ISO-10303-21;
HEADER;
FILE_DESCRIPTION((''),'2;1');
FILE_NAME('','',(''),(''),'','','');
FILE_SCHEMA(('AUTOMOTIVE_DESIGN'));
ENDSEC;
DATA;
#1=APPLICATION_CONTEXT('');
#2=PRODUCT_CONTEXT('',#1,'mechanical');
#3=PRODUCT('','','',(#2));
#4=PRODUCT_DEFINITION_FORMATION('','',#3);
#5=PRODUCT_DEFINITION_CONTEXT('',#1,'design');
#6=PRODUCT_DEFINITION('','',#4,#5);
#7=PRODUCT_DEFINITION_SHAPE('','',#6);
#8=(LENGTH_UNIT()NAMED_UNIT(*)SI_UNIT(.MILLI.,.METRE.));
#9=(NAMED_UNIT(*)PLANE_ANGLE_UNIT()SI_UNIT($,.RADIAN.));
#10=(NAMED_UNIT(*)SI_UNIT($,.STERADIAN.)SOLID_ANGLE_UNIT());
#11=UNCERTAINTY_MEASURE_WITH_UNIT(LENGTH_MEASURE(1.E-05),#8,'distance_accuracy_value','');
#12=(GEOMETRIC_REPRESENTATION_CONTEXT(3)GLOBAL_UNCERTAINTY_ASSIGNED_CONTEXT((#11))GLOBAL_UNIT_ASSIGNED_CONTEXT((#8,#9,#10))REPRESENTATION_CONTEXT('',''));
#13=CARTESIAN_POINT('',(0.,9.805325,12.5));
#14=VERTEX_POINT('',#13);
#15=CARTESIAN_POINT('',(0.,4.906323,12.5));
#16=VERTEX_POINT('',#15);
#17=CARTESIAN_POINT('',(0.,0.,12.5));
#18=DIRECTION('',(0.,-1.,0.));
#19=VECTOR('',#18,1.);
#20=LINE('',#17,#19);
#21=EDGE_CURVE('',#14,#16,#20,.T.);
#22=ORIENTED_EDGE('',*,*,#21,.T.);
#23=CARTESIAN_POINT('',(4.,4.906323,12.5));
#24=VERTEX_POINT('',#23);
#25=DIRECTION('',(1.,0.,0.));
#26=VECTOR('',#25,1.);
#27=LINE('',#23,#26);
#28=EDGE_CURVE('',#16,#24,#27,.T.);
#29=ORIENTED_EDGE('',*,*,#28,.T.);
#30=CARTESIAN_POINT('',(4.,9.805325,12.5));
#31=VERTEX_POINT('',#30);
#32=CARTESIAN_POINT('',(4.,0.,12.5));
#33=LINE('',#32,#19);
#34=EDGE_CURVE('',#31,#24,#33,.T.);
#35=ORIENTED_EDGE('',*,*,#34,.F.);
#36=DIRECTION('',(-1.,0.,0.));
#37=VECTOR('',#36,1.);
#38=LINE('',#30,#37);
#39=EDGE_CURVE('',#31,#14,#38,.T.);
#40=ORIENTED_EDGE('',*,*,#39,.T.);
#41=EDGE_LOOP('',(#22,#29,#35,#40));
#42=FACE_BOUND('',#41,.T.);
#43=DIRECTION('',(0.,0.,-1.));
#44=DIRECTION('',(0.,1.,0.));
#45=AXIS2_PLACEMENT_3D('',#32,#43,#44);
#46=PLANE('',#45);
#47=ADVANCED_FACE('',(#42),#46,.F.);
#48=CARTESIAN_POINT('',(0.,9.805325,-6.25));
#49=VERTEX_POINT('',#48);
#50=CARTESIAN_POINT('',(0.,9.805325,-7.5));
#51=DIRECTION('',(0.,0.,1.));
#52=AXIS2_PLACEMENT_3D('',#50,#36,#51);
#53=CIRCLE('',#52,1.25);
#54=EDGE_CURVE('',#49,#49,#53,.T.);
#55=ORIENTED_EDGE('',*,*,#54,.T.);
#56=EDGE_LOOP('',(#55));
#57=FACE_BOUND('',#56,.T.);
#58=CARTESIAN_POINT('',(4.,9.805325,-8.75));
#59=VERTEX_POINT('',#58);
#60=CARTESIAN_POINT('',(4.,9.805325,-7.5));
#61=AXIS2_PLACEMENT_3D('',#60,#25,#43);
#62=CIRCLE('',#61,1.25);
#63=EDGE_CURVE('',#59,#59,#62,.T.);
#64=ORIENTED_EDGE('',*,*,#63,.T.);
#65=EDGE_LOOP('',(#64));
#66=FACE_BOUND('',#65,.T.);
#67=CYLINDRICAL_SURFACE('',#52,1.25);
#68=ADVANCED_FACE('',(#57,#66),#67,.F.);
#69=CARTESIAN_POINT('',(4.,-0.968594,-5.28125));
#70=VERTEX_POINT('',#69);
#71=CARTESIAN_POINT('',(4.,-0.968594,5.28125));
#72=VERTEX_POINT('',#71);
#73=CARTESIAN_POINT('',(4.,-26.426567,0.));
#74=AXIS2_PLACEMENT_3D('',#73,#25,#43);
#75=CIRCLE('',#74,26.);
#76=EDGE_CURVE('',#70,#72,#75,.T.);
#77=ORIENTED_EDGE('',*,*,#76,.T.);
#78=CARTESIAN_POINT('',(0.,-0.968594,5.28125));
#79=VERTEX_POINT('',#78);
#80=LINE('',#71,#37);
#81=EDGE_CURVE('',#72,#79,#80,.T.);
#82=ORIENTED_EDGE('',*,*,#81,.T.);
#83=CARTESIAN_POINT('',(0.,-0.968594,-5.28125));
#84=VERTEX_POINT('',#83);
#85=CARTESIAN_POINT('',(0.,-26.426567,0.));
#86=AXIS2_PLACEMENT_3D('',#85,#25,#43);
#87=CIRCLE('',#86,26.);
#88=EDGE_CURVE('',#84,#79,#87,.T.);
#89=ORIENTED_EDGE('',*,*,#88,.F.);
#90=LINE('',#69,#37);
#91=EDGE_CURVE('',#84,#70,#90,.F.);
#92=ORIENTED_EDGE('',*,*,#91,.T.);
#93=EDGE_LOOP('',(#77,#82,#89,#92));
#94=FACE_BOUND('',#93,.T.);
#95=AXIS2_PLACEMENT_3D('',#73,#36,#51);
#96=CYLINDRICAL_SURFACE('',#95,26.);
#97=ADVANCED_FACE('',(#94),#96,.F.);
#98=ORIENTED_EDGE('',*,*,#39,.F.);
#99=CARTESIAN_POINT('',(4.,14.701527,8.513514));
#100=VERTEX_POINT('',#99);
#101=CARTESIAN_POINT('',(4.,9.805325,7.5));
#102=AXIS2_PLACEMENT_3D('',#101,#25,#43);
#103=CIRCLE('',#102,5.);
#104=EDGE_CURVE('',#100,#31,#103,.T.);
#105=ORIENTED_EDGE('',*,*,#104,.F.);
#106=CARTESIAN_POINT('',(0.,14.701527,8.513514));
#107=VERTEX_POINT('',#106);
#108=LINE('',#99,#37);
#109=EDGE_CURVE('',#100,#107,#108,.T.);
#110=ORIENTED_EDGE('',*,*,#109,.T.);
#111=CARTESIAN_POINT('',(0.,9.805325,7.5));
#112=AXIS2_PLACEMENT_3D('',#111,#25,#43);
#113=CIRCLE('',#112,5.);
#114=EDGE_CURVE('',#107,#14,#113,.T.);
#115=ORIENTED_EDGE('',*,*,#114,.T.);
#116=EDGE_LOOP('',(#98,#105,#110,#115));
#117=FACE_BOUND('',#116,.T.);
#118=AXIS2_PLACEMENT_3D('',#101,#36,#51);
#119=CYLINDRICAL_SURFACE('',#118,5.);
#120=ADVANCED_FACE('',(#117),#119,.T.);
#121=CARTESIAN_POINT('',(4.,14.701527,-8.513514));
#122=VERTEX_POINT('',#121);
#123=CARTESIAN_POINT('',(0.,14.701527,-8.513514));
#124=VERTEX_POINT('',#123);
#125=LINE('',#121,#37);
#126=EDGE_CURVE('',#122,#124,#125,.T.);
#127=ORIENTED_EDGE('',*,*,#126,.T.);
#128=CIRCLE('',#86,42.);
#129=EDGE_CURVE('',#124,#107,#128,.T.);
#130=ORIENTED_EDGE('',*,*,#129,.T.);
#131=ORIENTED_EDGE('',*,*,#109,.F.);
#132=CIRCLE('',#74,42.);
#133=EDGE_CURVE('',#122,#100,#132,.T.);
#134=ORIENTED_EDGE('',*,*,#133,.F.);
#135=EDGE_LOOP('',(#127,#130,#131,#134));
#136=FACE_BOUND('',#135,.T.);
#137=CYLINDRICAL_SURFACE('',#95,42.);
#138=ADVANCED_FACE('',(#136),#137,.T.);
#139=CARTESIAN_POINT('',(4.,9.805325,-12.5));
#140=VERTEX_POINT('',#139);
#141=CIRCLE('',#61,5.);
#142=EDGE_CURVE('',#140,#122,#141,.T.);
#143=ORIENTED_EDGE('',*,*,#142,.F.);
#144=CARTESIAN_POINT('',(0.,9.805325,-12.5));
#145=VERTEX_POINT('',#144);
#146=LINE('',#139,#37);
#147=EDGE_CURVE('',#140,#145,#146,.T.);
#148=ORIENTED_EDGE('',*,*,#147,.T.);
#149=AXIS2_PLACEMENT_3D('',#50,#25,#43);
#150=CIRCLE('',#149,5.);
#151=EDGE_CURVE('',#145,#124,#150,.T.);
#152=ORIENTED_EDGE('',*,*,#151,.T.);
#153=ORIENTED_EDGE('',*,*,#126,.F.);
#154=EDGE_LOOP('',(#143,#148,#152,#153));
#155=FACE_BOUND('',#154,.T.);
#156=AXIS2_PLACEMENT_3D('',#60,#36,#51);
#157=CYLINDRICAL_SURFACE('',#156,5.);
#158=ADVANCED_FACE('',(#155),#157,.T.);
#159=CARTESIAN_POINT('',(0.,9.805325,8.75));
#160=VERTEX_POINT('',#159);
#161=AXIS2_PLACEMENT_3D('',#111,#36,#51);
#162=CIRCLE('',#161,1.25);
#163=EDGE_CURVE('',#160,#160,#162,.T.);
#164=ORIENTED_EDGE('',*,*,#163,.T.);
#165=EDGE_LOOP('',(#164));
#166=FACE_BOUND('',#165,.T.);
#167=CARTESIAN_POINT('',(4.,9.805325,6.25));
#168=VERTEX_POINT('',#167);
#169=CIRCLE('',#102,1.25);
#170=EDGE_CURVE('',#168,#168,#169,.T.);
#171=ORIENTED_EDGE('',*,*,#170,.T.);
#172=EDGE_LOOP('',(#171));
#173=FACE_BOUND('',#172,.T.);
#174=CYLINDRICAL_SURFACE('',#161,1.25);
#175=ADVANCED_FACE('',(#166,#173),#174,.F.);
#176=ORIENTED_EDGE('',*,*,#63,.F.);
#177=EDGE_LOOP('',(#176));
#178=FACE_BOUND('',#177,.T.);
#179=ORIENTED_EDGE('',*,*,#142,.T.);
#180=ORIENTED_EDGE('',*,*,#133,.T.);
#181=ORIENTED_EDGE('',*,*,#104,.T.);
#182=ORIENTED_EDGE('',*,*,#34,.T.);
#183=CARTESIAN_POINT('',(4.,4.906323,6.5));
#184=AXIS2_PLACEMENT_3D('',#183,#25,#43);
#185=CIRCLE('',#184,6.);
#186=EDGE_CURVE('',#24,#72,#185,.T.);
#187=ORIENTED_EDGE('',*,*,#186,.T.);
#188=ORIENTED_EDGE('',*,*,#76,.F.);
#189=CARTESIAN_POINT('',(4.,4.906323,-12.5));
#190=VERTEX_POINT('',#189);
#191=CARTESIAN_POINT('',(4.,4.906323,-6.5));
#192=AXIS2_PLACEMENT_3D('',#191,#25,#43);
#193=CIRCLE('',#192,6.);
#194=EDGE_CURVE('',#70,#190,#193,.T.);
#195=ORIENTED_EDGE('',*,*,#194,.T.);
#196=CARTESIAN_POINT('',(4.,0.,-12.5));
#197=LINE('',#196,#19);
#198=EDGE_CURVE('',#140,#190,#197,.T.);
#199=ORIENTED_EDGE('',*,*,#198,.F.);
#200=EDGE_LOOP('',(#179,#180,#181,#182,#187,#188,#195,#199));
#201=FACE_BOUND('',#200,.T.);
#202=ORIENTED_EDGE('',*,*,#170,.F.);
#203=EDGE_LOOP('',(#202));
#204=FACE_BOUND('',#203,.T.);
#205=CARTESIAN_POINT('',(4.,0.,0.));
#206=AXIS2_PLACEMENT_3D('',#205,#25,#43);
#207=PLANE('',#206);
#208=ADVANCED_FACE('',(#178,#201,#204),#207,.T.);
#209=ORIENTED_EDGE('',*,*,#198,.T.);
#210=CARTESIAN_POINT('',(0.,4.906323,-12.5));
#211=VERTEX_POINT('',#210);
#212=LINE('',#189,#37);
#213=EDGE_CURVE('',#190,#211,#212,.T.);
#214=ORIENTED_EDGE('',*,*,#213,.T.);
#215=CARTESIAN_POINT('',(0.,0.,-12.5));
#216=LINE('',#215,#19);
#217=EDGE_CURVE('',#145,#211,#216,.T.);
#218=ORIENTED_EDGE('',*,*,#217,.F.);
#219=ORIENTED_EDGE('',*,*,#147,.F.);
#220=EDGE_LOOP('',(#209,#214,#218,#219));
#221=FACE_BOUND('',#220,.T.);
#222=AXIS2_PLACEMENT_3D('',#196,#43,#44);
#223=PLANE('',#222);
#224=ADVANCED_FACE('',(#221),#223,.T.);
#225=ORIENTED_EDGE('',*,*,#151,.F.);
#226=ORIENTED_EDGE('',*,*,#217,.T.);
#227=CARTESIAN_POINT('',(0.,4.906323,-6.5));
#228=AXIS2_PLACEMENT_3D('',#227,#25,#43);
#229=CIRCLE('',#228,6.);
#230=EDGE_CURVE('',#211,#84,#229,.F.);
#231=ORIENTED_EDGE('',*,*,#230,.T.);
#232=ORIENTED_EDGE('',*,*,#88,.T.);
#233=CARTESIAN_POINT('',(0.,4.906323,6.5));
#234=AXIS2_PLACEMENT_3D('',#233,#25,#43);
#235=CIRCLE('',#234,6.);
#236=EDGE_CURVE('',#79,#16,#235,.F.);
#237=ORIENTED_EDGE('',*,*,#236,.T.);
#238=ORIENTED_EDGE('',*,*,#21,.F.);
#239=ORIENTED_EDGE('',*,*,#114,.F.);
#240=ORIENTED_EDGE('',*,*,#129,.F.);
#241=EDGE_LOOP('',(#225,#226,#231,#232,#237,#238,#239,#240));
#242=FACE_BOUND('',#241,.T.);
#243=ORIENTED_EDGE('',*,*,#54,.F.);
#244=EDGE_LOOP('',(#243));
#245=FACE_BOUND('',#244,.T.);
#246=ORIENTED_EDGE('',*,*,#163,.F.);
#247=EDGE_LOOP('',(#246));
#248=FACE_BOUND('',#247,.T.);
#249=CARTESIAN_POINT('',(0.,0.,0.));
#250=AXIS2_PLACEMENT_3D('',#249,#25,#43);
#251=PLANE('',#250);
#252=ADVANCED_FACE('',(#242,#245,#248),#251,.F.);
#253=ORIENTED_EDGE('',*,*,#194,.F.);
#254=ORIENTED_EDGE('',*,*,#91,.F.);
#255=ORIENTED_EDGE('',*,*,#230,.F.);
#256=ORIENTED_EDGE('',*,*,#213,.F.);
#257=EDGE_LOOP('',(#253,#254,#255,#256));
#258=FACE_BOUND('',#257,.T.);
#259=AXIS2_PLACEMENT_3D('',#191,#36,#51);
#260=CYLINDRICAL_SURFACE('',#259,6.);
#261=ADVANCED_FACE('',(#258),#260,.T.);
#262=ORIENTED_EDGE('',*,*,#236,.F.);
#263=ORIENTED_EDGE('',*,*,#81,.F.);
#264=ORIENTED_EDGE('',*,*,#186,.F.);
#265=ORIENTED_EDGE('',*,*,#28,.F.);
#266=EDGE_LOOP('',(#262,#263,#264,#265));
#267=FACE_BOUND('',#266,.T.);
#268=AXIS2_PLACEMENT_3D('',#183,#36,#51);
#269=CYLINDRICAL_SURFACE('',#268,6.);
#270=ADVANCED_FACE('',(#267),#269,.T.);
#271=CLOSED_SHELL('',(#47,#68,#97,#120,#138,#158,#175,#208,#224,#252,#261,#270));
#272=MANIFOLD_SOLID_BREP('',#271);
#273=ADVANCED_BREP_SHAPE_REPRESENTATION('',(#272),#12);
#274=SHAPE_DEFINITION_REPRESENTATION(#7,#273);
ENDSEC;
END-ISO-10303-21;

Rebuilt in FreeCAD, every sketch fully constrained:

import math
import FreeCAD as App
import Part
import Sketcher
Q = App.Units.Quantity


def edges_at(feature, points):
    """Names of the edges that pass closest to the given points."""
    edges = feature.Shape.Edges
    near = lambda p: min(range(len(edges)), key=lambda i: edges[i].distToShape(Part.Vertex(*p))[0])
    return sorted({f"Edge{near(p) + 1}" for p in points})

doc = App.newDocument("Part")
params = doc.addObject("Spreadsheet::Sheet", "Params")
for row, (alias, value) in enumerate([
    ("sketch1_radius", "5 mm"),
    ("sketch1_radius2", "42 mm"),
    ("sketch1_radius3", "26 mm"),
    ("pad1_length", "4 mm"),
    ("fillet_radius", "6 mm"),
    ("sketch2_diameter", "2.5 mm"),
    ("hole_diameter", "2.5 mm"),
], start=1):
    params.set(f"A{row}", alias)
    params.set(f"B{row}", "=" + value)
    params.setAlias(f"B{row}", alias)

body = doc.addObject("PartDesign::Body", "Body")

# Sketch on YZ plane
sketch1 = doc.addObject("Sketcher::SketchObject", "Sketch")
body.addObject(sketch1)
sketch1.AttachmentSupport = (doc.YZ_Plane, [""])
sketch1.MapMode = "FlatFace"
sketch1.addGeometry([
    Part.LineSegment(App.Vector(-3.62854, -12.5, 0), App.Vector(9.805325, -12.5, 0)),  # 0
    Part.ArcOfCircle(Part.Circle(App.Vector(9.805325, -7.5, 0), App.Vector(0, 0, 1), 5), math.radians(-90), math.radians(-11.69505)),  # 1
    Part.ArcOfCircle(Part.Circle(App.Vector(-26.426567, 0, 0), App.Vector(0, 0, 1), 42), math.radians(-11.69505), math.radians(11.69505)),  # 2
    Part.ArcOfCircle(Part.Circle(App.Vector(9.805325, 7.5, 0), App.Vector(0, 0, 1), 5), math.radians(11.69505), math.radians(90)),  # 3
    Part.LineSegment(App.Vector(9.805325, 12.5, 0), App.Vector(-3.62854, 12.5, 0)),  # 4
    Part.ArcOfCircle(Part.Circle(App.Vector(-26.426567, 0, 0), App.Vector(0, 0, 1), 26), math.radians(-28.735654), math.radians(28.735654)),  # 5
], False)
sketch1.addConstraint([
    Sketcher.Constraint("Tangent", 0, 2, 1, 1),
    Sketcher.Constraint("Tangent", 1, 2, 2, 1),
    Sketcher.Constraint("Tangent", 2, 2, 3, 1),
    Sketcher.Constraint("Tangent", 3, 2, 4, 1),
    Sketcher.Constraint("Coincident", 4, 2, 5, 2),
    Sketcher.Constraint("Coincident", 5, 1, 0, 1),
    Sketcher.Constraint("Horizontal", 0),
    Sketcher.Constraint("Horizontal", 4),
    Sketcher.Constraint("Coincident", 5, 3, 2, 3),
    Sketcher.Constraint("Equal", 1, 3),
    Sketcher.Constraint("Symmetric", 1, 3, 3, 3, -1),
    Sketcher.Constraint("Radius", 1, Q("5 mm")),
    Sketcher.Constraint("Radius", 2, Q("42 mm")),
    Sketcher.Constraint("Radius", 5, Q("26 mm")),
    Sketcher.Constraint("DistanceY", 1, 3, 3, 3, Q("15 mm")),
    Sketcher.Constraint("DistanceX", 4, 2, -1, 1, Q("3.62854 mm")),
])
sketch1.setExpression("Constraints[11]", "Params.sketch1_radius")
sketch1.setExpression("Constraints[12]", "Params.sketch1_radius2")
sketch1.setExpression("Constraints[13]", "Params.sketch1_radius3")
pad1 = doc.addObject("PartDesign::Pad", "Pad")
body.addObject(pad1)
pad1.Profile = sketch1
pad1.setExpression("Length", "Params.pad1_length")
doc.recompute()

fillet = doc.addObject("PartDesign::Fillet", "Fillet")
body.addObject(fillet)
fillet.Base = (pad1, edges_at(pad1, [(2, -3.629, -12.5), (2, -3.629, 12.5)]))
fillet.setExpression("Radius", "Params.fillet_radius")

# Sketch on YZ plane
sketch2 = doc.addObject("Sketcher::SketchObject", "Sketch001")
body.addObject(sketch2)
sketch2.AttachmentSupport = (doc.YZ_Plane, [""])
sketch2.MapMode = "FlatFace"
sketch2.addGeometry([
    Part.Circle(App.Vector(9.805325, -7.5, 0), App.Vector(0, 0, 1), 1.25),
    Part.Circle(App.Vector(9.805325, 7.5, 0), App.Vector(0, 0, 1), 1.25),
], False)
sketch2.addConstraint([
    Sketcher.Constraint("Equal", 0, 1),
    Sketcher.Constraint("Symmetric", 0, 3, 1, 3, -1),
    Sketcher.Constraint("Diameter", 0, Q("2.5 mm")),
    Sketcher.Constraint("DistanceY", 0, 3, 1, 3, Q("15 mm")),
    Sketcher.Constraint("DistanceX", -1, 1, 0, 3, Q("9.805325 mm")),
])
sketch2.setExpression("Constraints[2]", "Params.sketch2_diameter")
doc.recompute()
hole = doc.addObject("PartDesign::Hole", "Hole")
body.addObject(hole)
hole.Profile = sketch2
hole.ThreadType = "None"
hole.setExpression("Diameter", "Params.hole_diameter")
hole.DepthType = "ThroughAll"
hole.Reversed = True

doc.recompute()
